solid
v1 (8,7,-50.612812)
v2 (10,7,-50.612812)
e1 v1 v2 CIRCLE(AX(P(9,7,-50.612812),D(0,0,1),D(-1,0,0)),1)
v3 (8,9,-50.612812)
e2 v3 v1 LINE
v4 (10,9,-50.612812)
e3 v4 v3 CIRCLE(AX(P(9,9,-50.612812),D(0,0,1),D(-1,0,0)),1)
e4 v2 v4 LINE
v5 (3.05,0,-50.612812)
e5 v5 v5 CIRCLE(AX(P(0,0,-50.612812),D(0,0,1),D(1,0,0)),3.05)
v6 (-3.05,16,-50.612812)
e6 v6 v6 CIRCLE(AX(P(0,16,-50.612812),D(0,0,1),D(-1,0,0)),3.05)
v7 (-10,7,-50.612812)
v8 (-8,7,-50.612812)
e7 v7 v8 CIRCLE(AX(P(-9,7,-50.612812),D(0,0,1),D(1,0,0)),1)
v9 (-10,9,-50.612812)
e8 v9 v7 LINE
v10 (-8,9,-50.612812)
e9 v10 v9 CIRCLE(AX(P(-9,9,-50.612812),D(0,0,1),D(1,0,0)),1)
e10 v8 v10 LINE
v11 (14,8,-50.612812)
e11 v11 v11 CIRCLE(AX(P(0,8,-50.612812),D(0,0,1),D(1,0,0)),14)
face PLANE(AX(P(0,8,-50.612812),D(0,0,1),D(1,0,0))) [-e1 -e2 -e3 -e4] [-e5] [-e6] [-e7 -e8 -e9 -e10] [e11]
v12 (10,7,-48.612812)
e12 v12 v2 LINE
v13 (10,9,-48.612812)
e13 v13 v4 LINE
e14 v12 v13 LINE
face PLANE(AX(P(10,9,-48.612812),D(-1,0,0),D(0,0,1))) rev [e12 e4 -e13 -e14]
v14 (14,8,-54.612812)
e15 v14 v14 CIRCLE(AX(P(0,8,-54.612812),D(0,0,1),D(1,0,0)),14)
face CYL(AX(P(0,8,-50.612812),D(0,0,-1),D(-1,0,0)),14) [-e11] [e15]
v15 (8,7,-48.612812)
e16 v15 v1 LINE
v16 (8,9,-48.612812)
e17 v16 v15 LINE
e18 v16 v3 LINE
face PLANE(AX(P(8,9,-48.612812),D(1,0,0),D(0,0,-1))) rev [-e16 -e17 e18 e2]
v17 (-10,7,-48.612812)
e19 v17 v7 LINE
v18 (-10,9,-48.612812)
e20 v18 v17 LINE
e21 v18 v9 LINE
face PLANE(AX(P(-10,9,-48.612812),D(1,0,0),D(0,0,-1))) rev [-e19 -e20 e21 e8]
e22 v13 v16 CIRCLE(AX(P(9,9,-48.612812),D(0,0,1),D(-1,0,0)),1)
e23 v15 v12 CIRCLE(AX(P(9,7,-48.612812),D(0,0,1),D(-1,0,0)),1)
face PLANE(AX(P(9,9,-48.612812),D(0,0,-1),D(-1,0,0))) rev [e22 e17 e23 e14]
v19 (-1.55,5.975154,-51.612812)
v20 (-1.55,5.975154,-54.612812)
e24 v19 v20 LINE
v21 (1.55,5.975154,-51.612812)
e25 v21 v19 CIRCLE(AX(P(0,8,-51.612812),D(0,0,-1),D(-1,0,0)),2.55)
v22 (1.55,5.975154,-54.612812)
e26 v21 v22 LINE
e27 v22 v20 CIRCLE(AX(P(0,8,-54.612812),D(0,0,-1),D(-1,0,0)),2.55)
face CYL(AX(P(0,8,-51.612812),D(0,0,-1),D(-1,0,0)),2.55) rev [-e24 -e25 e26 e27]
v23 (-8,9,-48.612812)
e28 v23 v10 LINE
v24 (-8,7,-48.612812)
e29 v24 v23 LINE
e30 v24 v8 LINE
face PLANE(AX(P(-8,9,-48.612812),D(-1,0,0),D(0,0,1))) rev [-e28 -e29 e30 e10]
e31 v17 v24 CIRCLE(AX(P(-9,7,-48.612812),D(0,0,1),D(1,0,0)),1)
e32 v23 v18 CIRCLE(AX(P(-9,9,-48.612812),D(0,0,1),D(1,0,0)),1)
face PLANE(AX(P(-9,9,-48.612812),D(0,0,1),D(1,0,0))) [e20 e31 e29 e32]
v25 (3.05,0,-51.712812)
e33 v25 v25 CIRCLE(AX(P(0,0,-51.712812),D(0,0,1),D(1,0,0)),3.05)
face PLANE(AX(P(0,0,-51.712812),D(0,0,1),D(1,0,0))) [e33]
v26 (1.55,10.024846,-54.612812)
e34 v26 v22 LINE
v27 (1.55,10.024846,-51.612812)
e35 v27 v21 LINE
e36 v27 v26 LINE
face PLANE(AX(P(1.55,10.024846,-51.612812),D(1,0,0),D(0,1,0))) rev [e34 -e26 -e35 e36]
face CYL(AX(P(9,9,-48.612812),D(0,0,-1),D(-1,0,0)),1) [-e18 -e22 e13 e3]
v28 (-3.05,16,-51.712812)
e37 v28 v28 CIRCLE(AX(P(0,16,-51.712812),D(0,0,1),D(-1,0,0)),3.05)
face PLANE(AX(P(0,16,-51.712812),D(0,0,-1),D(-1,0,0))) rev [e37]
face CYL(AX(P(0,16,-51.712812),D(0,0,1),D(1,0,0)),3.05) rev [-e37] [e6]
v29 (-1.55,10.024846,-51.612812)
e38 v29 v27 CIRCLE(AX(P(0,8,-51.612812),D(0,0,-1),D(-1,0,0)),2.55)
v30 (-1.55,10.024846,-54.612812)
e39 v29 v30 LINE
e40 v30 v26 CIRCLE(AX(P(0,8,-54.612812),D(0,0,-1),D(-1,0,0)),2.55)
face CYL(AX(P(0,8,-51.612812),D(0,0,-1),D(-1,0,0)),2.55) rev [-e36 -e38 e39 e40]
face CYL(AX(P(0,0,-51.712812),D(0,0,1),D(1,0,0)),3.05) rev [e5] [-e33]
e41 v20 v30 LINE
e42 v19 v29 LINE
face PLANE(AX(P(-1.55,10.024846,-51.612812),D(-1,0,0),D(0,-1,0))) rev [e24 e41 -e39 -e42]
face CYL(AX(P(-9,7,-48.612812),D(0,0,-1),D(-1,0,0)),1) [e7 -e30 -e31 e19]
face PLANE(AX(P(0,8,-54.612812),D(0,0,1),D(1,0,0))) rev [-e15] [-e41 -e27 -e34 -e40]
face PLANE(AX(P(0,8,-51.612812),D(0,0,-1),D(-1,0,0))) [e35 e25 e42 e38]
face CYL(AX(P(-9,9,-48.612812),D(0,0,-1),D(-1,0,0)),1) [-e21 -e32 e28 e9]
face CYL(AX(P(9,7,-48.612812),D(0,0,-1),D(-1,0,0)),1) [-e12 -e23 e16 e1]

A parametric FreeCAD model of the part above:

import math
import FreeCAD as App
import Part
import Sketcher
from FreeCAD import Vector
Q = App.Units.Quantity

doc = App.newDocument("Part")
params = doc.addObject("Spreadsheet::Sheet", "Params")
for row, (alias, value) in enumerate([
    ("sketch1_diameter", "28 mm"),
    ("pad1_length", "1 mm"),
    ("pad1_length2", "3 mm"),
    ("sketch2_diameter", "6.1 mm"),
    ("pocket1_length", "1.1 mm"),
    ("sketch3_radius", "1 mm"),
    ("sketch3_height", "2 mm"),
    ("pad2_length", "2 mm"),
    ("sketch4_radius", "2.55 mm"),
    ("pocket2_length", "3 mm"),
], start=1):
    params.set(f"A{row}", alias)
    params.set(f"B{row}", "=" + value)
    params.setAlias(f"B{row}", alias)

body = doc.addObject("PartDesign::Body", "Body")

# Sketch on XY plane
sketch1 = body.newObject("Sketcher::SketchObject", "Sketch")
sketch1.AttachmentSupport = (doc.getObject("XY_Plane"), [""])
sketch1.MapMode = "FlatFace"
sketch1.AttachmentOffset = App.Placement(Vector(0, 0, -51.612812), App.Rotation())
sketch1.addGeometry(Part.Circle(Vector(0, 8, 0), Vector(0, 0, 1), 14), False)
sketch1.addConstraint([
    Sketcher.Constraint("PointOnObject", 0, 3, -2),
    Sketcher.Constraint("Diameter", 0, Q("28 mm")),
    Sketcher.Constraint("DistanceY", -1, 1, 0, 3, Q("8 mm")),
])
sketch1.setExpression("Constraints[1]", "Params.sketch1_diameter")
pad1 = body.newObject("PartDesign::Pad", "Pad")
pad1.Profile = sketch1
pad1.Type = "TwoLengths"
pad1.setExpression("Length", "Params.pad1_length")
pad1.setExpression("Length2", "Params.pad1_length2")

# Sketch on XY plane
sketch2 = body.newObject("Sketcher::SketchObject", "Sketch001")
sketch2.AttachmentSupport = (doc.getObject("XY_Plane"), [""])
sketch2.MapMode = "FlatFace"
sketch2.AttachmentOffset = App.Placement(Vector(0, 0, -50.612812), App.Rotation())
sketch2.addGeometry([
    Part.Circle(Vector(0, 0, 0), Vector(0, 0, 1), 3),
    Part.Circle(Vector(0, 16, 0), Vector(0, 0, 1), 3),
], False)
sketch2.addConstraint([
    Sketcher.Constraint("Coincident", 0, 3, -1, 1),
    Sketcher.Constraint("Equal", 0, 1),
    Sketcher.Constraint("PointOnObject", 1, 3, -2),
    Sketcher.Constraint("Diameter", 0, Q("6.1 mm")),
    Sketcher.Constraint("DistanceY", -1, 1, 1, 3, Q("16 mm")),
])
sketch2.setExpression("Constraints[3]", "Params.sketch2_diameter")
pocket1 = body.newObject("PartDesign::Pocket", "Pocket")
pocket1.Profile = sketch2
pocket1.setExpression("Length", "Params.pocket1_length")

# Sketch on XY plane
sketch3 = body.newObject("Sketcher::SketchObject", "Sketch002")
sketch3.AttachmentSupport = (doc.getObject("XY_Plane"), [""])
sketch3.MapMode = "FlatFace"
sketch3.AttachmentOffset = App.Placement(Vector(0, 0, -50.612812), App.Rotation())
sketch3.addGeometry([
    Part.LineSegment(Vector(-8, 7, 0), Vector(-8, 9, 0)),  # 0
    Part.ArcOfCircle(Part.Circle(Vector(-9, 9, 0), Vector(0, 0, 1), 1), math.radians(0), math.radians(180)),  # 1
    Part.LineSegment(Vector(-10, 9, 0), Vector(-10, 7, 0)),  # 2
    Part.ArcOfCircle(Part.Circle(Vector(-9, 7, 0), Vector(0, 0, 1), 1), math.radians(180), math.radians(360)),  # 3
    Part.LineSegment(Vector(8, 9, 0), Vector(8, 7, 0)),  # 4
    Part.ArcOfCircle(Part.Circle(Vector(9, 7, 0), Vector(0, 0, 1), 1), math.radians(180), math.radians(360)),  # 5
    Part.LineSegment(Vector(10, 7, 0), Vector(10, 9, 0)),  # 6
    Part.ArcOfCircle(Part.Circle(Vector(9, 9, 0), Vector(0, 0, 1), 1), math.radians(0), math.radians(180)),  # 7
], False)
sketch3.addConstraint([
    Sketcher.Constraint("Tangent", 0, 2, 1, 1),
    Sketcher.Constraint("Tangent", 1, 2, 2, 1),
    Sketcher.Constraint("Tangent", 2, 2, 3, 1),
    Sketcher.Constraint("Tangent", 3, 2, 0, 1),
    Sketcher.Constraint("Tangent", 4, 2, 5, 1),
    Sketcher.Constraint("Tangent", 5, 2, 6, 1),
    Sketcher.Constraint("Tangent", 6, 2, 7, 1),
    Sketcher.Constraint("Tangent", 7, 2, 4, 1),
    Sketcher.Constraint("Vertical", 0),
    Sketcher.Constraint("Vertical", 2),
    Sketcher.Constraint("Vertical", 4),
    Sketcher.Constraint("Vertical", 6),
    Sketcher.Constraint("Equal", 3, 5),
    Sketcher.Constraint("Symmetric", 3, 3, 5, 3, -2),
    Sketcher.Constraint("Horizontal", 1, 3, 7, 3),
    Sketcher.Constraint("Radius", 1, Q("1 mm")),
    Sketcher.Constraint("DistanceY", 0, 1, 0, 2, Q("2 mm")),
    Sketcher.Constraint("DistanceX", 1, 3, -1, 1, Q("9 mm")),
    Sketcher.Constraint("DistanceY", -1, 1, 1, 3, Q("9 mm")),
])
sketch3.setExpression("Constraints[15]", "Params.sketch3_radius")
sketch3.setExpression("Constraints[16]", "Params.sketch3_height")
pad2 = body.newObject("PartDesign::Pad", "Pad001")
pad2.Profile = sketch3
pad2.setExpression("Length", "Params.pad2_length")

# Sketch on XY plane
sketch4 = body.newObject("Sketcher::SketchObject", "Sketch003")
sketch4.AttachmentSupport = (doc.getObject("XY_Plane"), [""])
sketch4.MapMode = "FlatFace"
sketch4.AttachmentOffset = App.Placement(Vector(0, 0, -54.612812), App.Rotation())
sketch4.addGeometry([
    Part.LineSegment(Vector(1.6, 10, 0), Vector(1.6, 6, 0)),
    Part.ArcOfCircle(Part.Circle(Vector(0, 8, 0), Vector(0, 0, 1), 2.5), math.radians(-127), math.radians(-53)),
    Part.LineSegment(Vector(-1.6, 6, 0), Vector(-1.6, 10, 0)),
    Part.ArcOfCircle(Part.Circle(Vector(0, 8, 0), Vector(0, 0, 1), 2.5), math.radians(53), math.radians(127)),
], False)
sketch4.addConstraint([
    Sketcher.Constraint("Coincident", 0, 2, 1, 2),
    Sketcher.Constraint("Coincident", 1, 1, 2, 1),
    Sketcher.Constraint("Coincident", 2, 2, 3, 2),
    Sketcher.Constraint("Coincident", 3, 1, 0, 1),
    Sketcher.Constraint("Vertical", 0),
    Sketcher.Constraint("Vertical", 2),
    Sketcher.Constraint("Coincident", 3, 3, 1, 3),
    Sketcher.Constraint("Equal", 1, 3),
    Sketcher.Constraint("Symmetric", 0, 2, 1, 1, -2),
    Sketcher.Constraint("Radius", 1, Q("2.55 mm")),
    Sketcher.Constraint("DistanceY", -1, 1, 1, 3, Q("8 mm")),
    Sketcher.Constraint("DistanceX", 1, 1, 0, 2, Q("3.1 mm")),
])
sketch4.setExpression("Constraints[9]", "Params.sketch4_radius")
pocket2 = body.newObject("PartDesign::Pocket", "Pocket001")
pocket2.Profile = sketch4
pocket2.setExpression("Length", "Params.pocket2_length")
pocket2.Reversed = True

doc.recompute()
